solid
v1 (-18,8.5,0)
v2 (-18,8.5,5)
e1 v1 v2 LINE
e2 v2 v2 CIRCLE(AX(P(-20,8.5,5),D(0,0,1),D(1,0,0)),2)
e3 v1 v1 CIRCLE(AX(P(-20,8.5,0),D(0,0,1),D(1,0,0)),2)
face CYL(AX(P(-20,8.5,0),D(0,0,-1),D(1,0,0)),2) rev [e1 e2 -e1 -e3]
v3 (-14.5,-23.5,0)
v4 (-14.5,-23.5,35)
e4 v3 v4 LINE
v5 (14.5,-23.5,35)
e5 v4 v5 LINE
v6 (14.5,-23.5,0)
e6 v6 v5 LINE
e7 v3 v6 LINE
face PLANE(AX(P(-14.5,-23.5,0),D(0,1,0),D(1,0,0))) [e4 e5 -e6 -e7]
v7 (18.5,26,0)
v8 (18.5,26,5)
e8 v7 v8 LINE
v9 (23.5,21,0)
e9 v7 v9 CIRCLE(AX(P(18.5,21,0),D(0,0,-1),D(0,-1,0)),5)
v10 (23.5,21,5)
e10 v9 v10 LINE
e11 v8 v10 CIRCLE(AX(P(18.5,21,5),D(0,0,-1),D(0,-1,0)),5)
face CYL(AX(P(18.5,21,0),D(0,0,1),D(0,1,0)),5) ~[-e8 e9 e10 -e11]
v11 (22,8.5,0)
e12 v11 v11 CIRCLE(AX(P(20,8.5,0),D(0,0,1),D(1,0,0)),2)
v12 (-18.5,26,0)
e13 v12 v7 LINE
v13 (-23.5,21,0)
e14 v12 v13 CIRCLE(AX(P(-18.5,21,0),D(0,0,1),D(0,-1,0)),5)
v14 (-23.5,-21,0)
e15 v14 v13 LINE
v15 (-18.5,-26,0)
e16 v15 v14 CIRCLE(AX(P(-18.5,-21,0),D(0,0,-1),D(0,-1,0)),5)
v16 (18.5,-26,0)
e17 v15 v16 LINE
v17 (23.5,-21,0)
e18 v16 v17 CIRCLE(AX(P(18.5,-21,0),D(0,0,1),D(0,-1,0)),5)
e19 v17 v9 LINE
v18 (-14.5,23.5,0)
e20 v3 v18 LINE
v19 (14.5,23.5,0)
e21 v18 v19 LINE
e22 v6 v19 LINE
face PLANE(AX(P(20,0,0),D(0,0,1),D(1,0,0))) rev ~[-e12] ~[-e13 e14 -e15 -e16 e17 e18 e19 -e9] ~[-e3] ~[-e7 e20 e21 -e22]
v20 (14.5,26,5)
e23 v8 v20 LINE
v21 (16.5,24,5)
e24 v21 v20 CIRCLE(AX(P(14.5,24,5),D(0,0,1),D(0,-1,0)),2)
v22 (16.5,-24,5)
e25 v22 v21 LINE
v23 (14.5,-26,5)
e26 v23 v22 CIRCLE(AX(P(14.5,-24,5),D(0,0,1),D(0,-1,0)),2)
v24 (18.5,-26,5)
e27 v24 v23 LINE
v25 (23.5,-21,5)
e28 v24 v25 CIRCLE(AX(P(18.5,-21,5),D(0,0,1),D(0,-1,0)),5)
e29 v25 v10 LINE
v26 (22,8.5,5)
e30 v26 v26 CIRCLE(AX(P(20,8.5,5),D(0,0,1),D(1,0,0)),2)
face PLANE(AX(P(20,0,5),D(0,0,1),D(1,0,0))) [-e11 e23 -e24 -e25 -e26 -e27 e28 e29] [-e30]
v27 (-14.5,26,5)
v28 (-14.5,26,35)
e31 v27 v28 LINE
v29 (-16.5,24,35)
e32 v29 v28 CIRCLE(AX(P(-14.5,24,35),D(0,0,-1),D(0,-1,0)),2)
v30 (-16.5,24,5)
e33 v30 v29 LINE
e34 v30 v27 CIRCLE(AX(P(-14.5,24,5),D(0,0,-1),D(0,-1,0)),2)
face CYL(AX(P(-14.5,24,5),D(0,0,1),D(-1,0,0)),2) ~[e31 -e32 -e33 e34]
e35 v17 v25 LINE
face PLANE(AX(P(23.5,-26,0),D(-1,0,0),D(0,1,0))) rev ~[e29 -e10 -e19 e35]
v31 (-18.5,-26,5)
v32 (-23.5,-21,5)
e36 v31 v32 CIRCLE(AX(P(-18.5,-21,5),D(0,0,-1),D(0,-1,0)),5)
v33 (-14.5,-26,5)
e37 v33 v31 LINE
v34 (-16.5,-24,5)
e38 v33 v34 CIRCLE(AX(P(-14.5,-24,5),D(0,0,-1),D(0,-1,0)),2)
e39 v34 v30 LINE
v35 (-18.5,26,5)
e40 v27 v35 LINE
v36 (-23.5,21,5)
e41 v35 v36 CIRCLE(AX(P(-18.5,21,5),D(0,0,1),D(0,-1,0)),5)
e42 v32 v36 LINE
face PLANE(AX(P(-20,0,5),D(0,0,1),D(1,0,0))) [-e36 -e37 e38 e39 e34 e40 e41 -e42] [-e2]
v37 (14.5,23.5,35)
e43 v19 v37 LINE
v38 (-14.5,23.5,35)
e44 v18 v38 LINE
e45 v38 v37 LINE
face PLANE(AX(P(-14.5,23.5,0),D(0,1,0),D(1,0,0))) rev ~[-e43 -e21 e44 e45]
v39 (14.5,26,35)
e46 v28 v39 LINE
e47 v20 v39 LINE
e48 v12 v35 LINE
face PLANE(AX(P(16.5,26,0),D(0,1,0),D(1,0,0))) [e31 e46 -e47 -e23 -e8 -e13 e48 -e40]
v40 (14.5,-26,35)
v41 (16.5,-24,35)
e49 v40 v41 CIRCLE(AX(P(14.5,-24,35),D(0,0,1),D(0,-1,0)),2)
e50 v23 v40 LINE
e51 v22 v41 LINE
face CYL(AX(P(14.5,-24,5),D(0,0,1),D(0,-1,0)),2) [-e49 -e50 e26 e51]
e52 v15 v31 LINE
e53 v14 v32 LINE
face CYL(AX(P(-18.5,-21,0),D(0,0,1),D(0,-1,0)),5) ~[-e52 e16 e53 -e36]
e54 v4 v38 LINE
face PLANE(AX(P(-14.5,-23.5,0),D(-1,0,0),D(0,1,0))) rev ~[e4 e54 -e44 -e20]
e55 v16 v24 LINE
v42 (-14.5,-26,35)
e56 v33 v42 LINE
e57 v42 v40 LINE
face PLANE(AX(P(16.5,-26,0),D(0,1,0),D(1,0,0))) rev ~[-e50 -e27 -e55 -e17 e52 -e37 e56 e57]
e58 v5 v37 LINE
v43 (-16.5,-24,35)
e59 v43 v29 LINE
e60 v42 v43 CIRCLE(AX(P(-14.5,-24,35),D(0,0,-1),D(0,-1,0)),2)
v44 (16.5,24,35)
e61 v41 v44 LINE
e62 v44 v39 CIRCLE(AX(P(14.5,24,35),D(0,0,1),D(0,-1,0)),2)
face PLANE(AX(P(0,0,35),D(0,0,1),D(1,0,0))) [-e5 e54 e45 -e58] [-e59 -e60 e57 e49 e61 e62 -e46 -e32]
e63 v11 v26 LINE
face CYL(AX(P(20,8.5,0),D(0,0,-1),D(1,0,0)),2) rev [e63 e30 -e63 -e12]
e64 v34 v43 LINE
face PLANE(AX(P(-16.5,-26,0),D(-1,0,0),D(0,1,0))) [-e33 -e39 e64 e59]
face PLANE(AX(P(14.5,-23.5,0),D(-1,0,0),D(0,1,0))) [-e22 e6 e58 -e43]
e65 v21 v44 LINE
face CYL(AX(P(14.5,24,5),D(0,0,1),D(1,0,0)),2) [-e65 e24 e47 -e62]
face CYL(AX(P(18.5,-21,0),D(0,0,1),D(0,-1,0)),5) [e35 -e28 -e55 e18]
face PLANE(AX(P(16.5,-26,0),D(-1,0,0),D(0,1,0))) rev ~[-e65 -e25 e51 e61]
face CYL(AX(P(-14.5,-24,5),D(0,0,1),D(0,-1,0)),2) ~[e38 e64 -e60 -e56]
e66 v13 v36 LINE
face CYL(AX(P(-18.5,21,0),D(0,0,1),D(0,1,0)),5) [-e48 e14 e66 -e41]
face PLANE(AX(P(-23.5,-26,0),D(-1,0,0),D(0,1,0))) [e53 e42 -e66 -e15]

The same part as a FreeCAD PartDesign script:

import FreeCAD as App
import Part
import Sketcher
Q = App.Units.Quantity


def edges_at(feature, points):
    """Names of the edges that pass closest to the given points."""
    edges = feature.Shape.Edges
    near = lambda p: min(range(len(edges)), key=lambda i: edges[i].distToShape(Part.Vertex(*p))[0])
    return sorted({f"Edge{near(p) + 1}" for p in points})

doc = App.newDocument("Part")
params = doc.addObject("Spreadsheet::Sheet", "Params")
for row, (alias, value) in enumerate([
    ("sketch1_diameter", "4 mm"),
    ("sketch1_width", "7 mm"),
    ("sketch1_height", "52 mm"),
    ("pad1_length", "5 mm"),
    ("sketch2_width", "33 mm"),
    ("sketch2_width2", "29 mm"),
    ("sketch2_height", "52 mm"),
    ("sketch2_height2", "47 mm"),
    ("pad2_length", "35 mm"),
    ("sketch3_diameter", "4 mm"),
    ("sketch3_width", "7 mm"),
    ("sketch3_height", "52 mm"),
    ("pad3_length", "5 mm"),
    ("fillet_radius", "5 mm"),
    ("fillet2_radius", "2 mm"),
], start=1):
    params.set(f"A{row}", alias)
    params.set(f"B{row}", "=" + value)
    params.setAlias(f"B{row}", alias)

body = doc.addObject("PartDesign::Body", "Body")

sketch1 = body.newObject("Sketcher::SketchObject", "Sketch")
sketch1.AttachmentSupport = (doc.getObject("XY_Plane"), [""])
sketch1.MapMode = "FlatFace"
sketch1.addGeometry(Part.LineSegment(App.Vector(-23.5, 26, 0), App.Vector(-23.5, -26, 0)), False)
sketch1.addGeometry(Part.LineSegment(App.Vector(-23.5, -26, 0), App.Vector(-16.5, -26, 0)), False)
sketch1.addGeometry(Part.LineSegment(App.Vector(-16.5, -26, 0), App.Vector(-16.5, 26, 0)), False)
sketch1.addGeometry(Part.LineSegment(App.Vector(-16.5, 26, 0), App.Vector(-23.5, 26, 0)), False)
sketch1.addGeometry(Part.Circle(App.Vector(-20, 8.5, 0), App.Vector(0, 0, 1), 2), False)
sketch1.addConstraint(Sketcher.Constraint("Coincident", 0, 2, 1, 1))
sketch1.addConstraint(Sketcher.Constraint("Coincident", 1, 2, 2, 1))
sketch1.addConstraint(Sketcher.Constraint("Coincident", 2, 2, 3, 1))
sketch1.addConstraint(Sketcher.Constraint("Coincident", 3, 2, 0, 1))
sketch1.addConstraint(Sketcher.Constraint("Vertical", 0))
sketch1.addConstraint(Sketcher.Constraint("Horizontal", 1))
sketch1.addConstraint(Sketcher.Constraint("Vertical", 2))
sketch1.addConstraint(Sketcher.Constraint("Horizontal", 3))
sketch1.addConstraint(Sketcher.Constraint("Diameter", 4, Q("4 mm")))
sketch1.addConstraint(Sketcher.Constraint("DistanceX", 1, 1, 1, 2, Q("7 mm")))
sketch1.addConstraint(Sketcher.Constraint("DistanceY", 0, 2, 0, 1, Q("52 mm")))
sketch1.addConstraint(Sketcher.Constraint("DistanceX", 4, 3, -1, 1, Q("20 mm")))
sketch1.addConstraint(Sketcher.Constraint("DistanceY", 0, 2, -1, 1, Q("26 mm")))
sketch1.addConstraint(Sketcher.Constraint("DistanceY", -1, 1, 4, 3, Q("8.5 mm")))
sketch1.addConstraint(Sketcher.Constraint("DistanceX", 0, 2, -1, 1, Q("23.5 mm")))
sketch1.setExpression("Constraints[8]", "Params.sketch1_diameter")
sketch1.setExpression("Constraints[9]", "Params.sketch1_width")
sketch1.setExpression("Constraints[10]", "Params.sketch1_height")
pad1 = body.newObject("PartDesign::Pad", "Pad")
pad1.Profile = sketch1
pad1.setExpression("Length", "Params.pad1_length")

sketch2 = body.newObject("Sketcher::SketchObject", "Sketch001")
sketch2.AttachmentSupport = (doc.getObject("XY_Plane"), [""])
sketch2.MapMode = "FlatFace"
sketch2.addGeometry(Part.LineSegment(App.Vector(-16, 26, 0), App.Vector(-16, -26, 0)), False)
sketch2.addGeometry(Part.LineSegment(App.Vector(-16, -26, 0), App.Vector(16, -26, 0)), False)
sketch2.addGeometry(Part.LineSegment(App.Vector(16, -26, 0), App.Vector(16, 26, 0)), False)
sketch2.addGeometry(Part.LineSegment(App.Vector(16, 26, 0), App.Vector(-16, 26, 0)), False)
sketch2.addGeometry(Part.LineSegment(App.Vector(14, -24, 0), App.Vector(-14, -24, 0)), False)
sketch2.addGeometry(Part.LineSegment(App.Vector(-14, -24, 0), App.Vector(-14, 24, 0)), False)
sketch2.addGeometry(Part.LineSegment(App.Vector(-14, 24, 0), App.Vector(14, 24, 0)), False)
sketch2.addGeometry(Part.LineSegment(App.Vector(14, 24, 0), App.Vector(14, -24, 0)), False)
sketch2.addConstraint(Sketcher.Constraint("Coincident", 0, 2, 1, 1))
sketch2.addConstraint(Sketcher.Constraint("Coincident", 1, 2, 2, 1))
sketch2.addConstraint(Sketcher.Constraint("Coincident", 2, 2, 3, 1))
sketch2.addConstraint(Sketcher.Constraint("Coincident", 3, 2, 0, 1))
sketch2.addConstraint(Sketcher.Constraint("Coincident", 4, 2, 5, 1))
sketch2.addConstraint(Sketcher.Constraint("Coincident", 5, 2, 6, 1))
sketch2.addConstraint(Sketcher.Constraint("Coincident", 6, 2, 7, 1))
sketch2.addConstraint(Sketcher.Constraint("Coincident", 7, 2, 4, 1))
sketch2.addConstraint(Sketcher.Constraint("Vertical", 0))
sketch2.addConstraint(Sketcher.Constraint("Horizontal", 1))
sketch2.addConstraint(Sketcher.Constraint("Vertical", 2))
sketch2.addConstraint(Sketcher.Constraint("Horizontal", 3))
sketch2.addConstraint(Sketcher.Constraint("Horizontal", 4))
sketch2.addConstraint(Sketcher.Constraint("Vertical", 5))
sketch2.addConstraint(Sketcher.Constraint("Horizontal", 6))
sketch2.addConstraint(Sketcher.Constraint("Vertical", 7))
sketch2.addConstraint(Sketcher.Constraint("Symmetric", 0, 2, 2, 2, -1, 1))
sketch2.addConstraint(Sketcher.Constraint("Symmetric", 4, 2, 6, 2, -1, 1))
sketch2.addConstraint(Sketcher.Constraint("DistanceX", 1, 1, 1, 2, Q("33 mm")))
sketch2.addConstraint(Sketcher.Constraint("DistanceX", 4, 2, 4, 1, Q("29 mm")))
sketch2.addConstraint(Sketcher.Constraint("DistanceY", 0, 2, 0, 1, Q("52 mm")))
sketch2.addConstraint(Sketcher.Constraint("DistanceY", 5, 1, 5, 2, Q("47 mm")))
sketch2.setExpression("Constraints[18]", "Params.sketch2_width")
sketch2.setExpression("Constraints[19]", "Params.sketch2_width2")
sketch2.setExpression("Constraints[20]", "Params.sketch2_height")
sketch2.setExpression("Constraints[21]", "Params.sketch2_height2")
pad2 = body.newObject("PartDesign::Pad", "Pad001")
pad2.Profile = sketch2
pad2.setExpression("Length", "Params.pad2_length")

sketch3 = body.newObject("Sketcher::SketchObject", "Sketch002")
sketch3.AttachmentSupport = (doc.getObject("XY_Plane"), [""])
sketch3.MapMode = "FlatFace"
sketch3.addGeometry(Part.LineSegment(App.Vector(16.5, 26, 0), App.Vector(16.5, -26, 0)), False)
sketch3.addGeometry(Part.LineSegment(App.Vector(16.5, -26, 0), App.Vector(23.5, -26, 0)), False)
sketch3.addGeometry(Part.LineSegment(App.Vector(23.5, -26, 0), App.Vector(23.5, 26, 0)), False)
sketch3.addGeometry(Part.LineSegment(App.Vector(23.5, 26, 0), App.Vector(16.5, 26, 0)), False)
sketch3.addGeometry(Part.Circle(App.Vector(20, 8.5, 0), App.Vector(0, 0, 1), 2), False)
sketch3.addConstraint(Sketcher.Constraint("Coincident", 0, 2, 1, 1))
sketch3.addConstraint(Sketcher.Constraint("Coincident", 1, 2, 2, 1))
sketch3.addConstraint(Sketcher.Constraint("Coincident", 2, 2, 3, 1))
sketch3.addConstraint(Sketcher.Constraint("Coincident", 3, 2, 0, 1))
sketch3.addConstraint(Sketcher.Constraint("Vertical", 0))
sketch3.addConstraint(Sketcher.Constraint("Horizontal", 1))
sketch3.addConstraint(Sketcher.Constraint("Vertical", 2))
sketch3.addConstraint(Sketcher.Constraint("Horizontal", 3))
sketch3.addConstraint(Sketcher.Constraint("Diameter", 4, Q("4 mm")))
sketch3.addConstraint(Sketcher.Constraint("DistanceX", 1, 1, 1, 2, Q("7 mm")))
sketch3.addConstraint(Sketcher.Constraint("DistanceY", 0, 2, 0, 1, Q("52 mm")))
sketch3.addConstraint(Sketcher.Constraint("DistanceX", -1, 1, 4, 3, Q("20 mm")))
sketch3.addConstraint(Sketcher.Constraint("DistanceY", 0, 2, -1, 1, Q("26 mm")))
sketch3.addConstraint(Sketcher.Constraint("DistanceY", -1, 1, 4, 3, Q("8.5 mm")))
sketch3.addConstraint(Sketcher.Constraint("DistanceX", -1, 1, 0, 2, Q("16.5 mm")))
sketch3.setExpression("Constraints[8]", "Params.sketch3_diameter")
sketch3.setExpression("Constraints[9]", "Params.sketch3_width")
sketch3.setExpression("Constraints[10]", "Params.sketch3_height")
pad3 = body.newObject("PartDesign::Pad", "Pad002")
pad3.Profile = sketch3
pad3.setExpression("Length", "Params.pad3_length")
doc.recompute()

fillet = body.newObject("PartDesign::Fillet", "Fillet")
fillet.Base = (pad3, edges_at(pad3, [
    (-23.5, -26, 2.5),
    (23.5, -26, 2.5),
    (23.5, 26, 2.5),
    (-23.5, 26, 2.5),
]))
fillet.setExpression("Radius", "Params.fillet_radius")
doc.recompute()

fillet2 = body.newObject("PartDesign::Fillet", "Fillet001")
fillet2.Base = (fillet, edges_at(fillet, [
    (-16.5, -26, 20),
    (16.5, -26, 20),
    (16.5, 26, 20),
    (-16.5, 26, 20),
]))
fillet2.setExpression("Radius", "Params.fillet2_radius")

doc.recompute()
